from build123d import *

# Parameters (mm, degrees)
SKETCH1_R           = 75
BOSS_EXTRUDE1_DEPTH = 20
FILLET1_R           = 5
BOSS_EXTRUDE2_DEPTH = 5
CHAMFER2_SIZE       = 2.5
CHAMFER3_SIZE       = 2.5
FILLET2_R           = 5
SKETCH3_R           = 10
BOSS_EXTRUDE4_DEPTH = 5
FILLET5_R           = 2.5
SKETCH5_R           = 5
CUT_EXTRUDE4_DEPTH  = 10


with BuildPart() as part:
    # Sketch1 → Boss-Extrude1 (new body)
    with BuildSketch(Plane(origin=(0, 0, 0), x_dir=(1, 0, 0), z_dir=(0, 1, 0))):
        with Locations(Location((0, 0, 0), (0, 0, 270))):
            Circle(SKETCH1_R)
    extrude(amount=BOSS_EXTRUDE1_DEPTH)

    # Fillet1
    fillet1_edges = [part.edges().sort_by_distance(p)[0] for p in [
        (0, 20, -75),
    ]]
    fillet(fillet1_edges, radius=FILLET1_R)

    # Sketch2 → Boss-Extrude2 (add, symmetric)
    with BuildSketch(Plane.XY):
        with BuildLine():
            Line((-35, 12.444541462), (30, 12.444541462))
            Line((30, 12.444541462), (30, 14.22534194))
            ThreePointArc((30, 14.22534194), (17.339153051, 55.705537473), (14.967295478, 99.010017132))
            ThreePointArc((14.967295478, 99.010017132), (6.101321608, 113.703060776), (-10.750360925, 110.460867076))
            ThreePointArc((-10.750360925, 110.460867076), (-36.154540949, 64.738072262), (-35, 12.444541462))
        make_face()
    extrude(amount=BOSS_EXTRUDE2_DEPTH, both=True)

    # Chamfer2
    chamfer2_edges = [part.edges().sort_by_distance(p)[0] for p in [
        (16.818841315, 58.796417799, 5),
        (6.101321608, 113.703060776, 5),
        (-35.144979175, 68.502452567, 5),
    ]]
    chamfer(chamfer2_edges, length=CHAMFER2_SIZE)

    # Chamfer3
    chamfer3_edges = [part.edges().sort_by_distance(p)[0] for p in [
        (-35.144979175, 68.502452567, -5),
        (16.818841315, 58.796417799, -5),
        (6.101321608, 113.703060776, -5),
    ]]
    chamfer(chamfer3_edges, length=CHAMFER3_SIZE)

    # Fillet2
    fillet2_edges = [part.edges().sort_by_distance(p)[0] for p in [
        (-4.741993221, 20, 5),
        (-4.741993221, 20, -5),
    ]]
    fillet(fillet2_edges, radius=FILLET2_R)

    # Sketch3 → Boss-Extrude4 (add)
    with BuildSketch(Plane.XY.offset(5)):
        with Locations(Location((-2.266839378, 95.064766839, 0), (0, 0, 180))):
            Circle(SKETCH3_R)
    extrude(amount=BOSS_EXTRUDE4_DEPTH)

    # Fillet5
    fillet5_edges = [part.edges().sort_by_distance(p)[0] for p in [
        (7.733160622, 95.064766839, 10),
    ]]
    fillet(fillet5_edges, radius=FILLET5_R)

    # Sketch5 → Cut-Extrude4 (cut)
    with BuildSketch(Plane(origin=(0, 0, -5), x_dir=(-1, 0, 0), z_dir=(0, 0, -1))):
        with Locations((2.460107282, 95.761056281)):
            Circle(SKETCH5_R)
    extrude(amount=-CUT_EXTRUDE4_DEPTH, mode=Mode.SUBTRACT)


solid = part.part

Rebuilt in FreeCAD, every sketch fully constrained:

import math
import FreeCAD as App
import Part
import Sketcher

V = App.Vector
Q = App.Units.Quantity


def edges_at(feature, points):
    """Names of the edges that pass closest to the given points."""
    edges = feature.Shape.Edges
    near = lambda p: min(range(len(edges)), key=lambda i: edges[i].distToShape(Part.Vertex(*p))[0])
    return sorted({f"Edge{near(p) + 1}" for p in points})

doc = App.newDocument("Part")
body = doc.addObject("PartDesign::Body", "Body")

sketch1 = body.newObject("Sketcher::SketchObject", "Sketch")
sketch1.AttachmentSupport = (doc.getObject("XZ_Plane"), [""])
sketch1.MapMode = "FlatFace"
sketch1.addGeometry(Part.Circle(V(0, 0, 0), V(0, 0, 1), 75), False)
sketch1.addConstraint([
    Sketcher.Constraint("Coincident", 0, 3, -1, 1),
    Sketcher.Constraint("Diameter", 0, Q("150 mm")),
])
pad1 = body.newObject("PartDesign::Pad", "Pad")
pad1.Profile = sketch1
pad1.Length = 20
pad1.Reversed = True
doc.recompute()

fillet = body.newObject("PartDesign::Fillet", "Fillet")
fillet.Base = (pad1, edges_at(pad1, [(0, 20, -75)]))
fillet.Radius = 5

sketch2 = body.newObject("Sketcher::SketchObject", "Sketch001")
sketch2.AttachmentSupport = (doc.getObject("XY_Plane"), [""])
sketch2.MapMode = "FlatFace"
sketch2.addGeometry([
    Part.LineSegment(V(-35, 12.4, 0), V(30, 12.4, 0)),
    Part.LineSegment(V(30, 12.4, 0), V(30, 14.2, 0)),
    Part.ArcOfCircle(Part.Circle(V(194.6, 87.1, 0), V(0, 0, 1), 180), math.radians(176), math.radians(204)),
    Part.ArcOfCircle(Part.Circle(V(0, 100, 0), V(0, 0, 1), 15), math.radians(-4), math.radians(136)),
    Part.ArcOfCircle(Part.Circle(V(60.9, 40.7, 0), V(0, 0, 1), 100), math.radians(136), math.radians(196)),
], False)
sketch2.addConstraint([
    Sketcher.Constraint("Coincident", 0, 2, 1, 1),
    Sketcher.Constraint("Coincident", 1, 2, 2, 2),
    Sketcher.Constraint("Tangent", 2, 1, 3, 1),
    Sketcher.Constraint("Tangent", 3, 2, 4, 1),
    Sketcher.Constraint("Coincident", 4, 2, 0, 1),
    Sketcher.Constraint("Horizontal", 0),
    Sketcher.Constraint("Vertical", 1),
    Sketcher.Constraint("PointOnObject", 3, 3, -2),
    Sketcher.Constraint("Radius", 2, Q("180 mm")),
    Sketcher.Constraint("Radius", 3, Q("15 mm")),
    Sketcher.Constraint("Radius", 4, Q("100 mm")),
    Sketcher.Constraint("DistanceX", 0, 1, 0, 2, Q("65 mm")),
    Sketcher.Constraint("DistanceY", -1, 1, 3, 3, Q("100 mm")),
    Sketcher.Constraint("DistanceX", -1, 1, 0, 2, Q("30 mm")),
    Sketcher.Constraint("DistanceY", 1, 1, 1, 2, Q("1.7808 mm")),
    Sketcher.Constraint("DistanceX", -1, 1, 2, 3, Q("194.574841 mm")),
])
pad2 = body.newObject("PartDesign::Pad", "Pad001")
pad2.Profile = sketch2
pad2.Length = 10
pad2.Midplane = True
doc.recompute()

chamfer = body.newObject("PartDesign::Chamfer", "Chamfer")
chamfer.Base = (pad2, edges_at(pad2, [(16.819, 58.796, 5), (6.101, 113.703, 5), (-35.145, 68.502, 5)]))
chamfer.Size = 2.5
doc.recompute()

chamfer2 = body.newObject("PartDesign::Chamfer", "Chamfer001")
chamfer2.Base = (chamfer, edges_at(chamfer, [(-35.145, 68.502, -5), (16.819, 58.796, -5), (6.101, 113.703, -5)]))
chamfer2.Size = 2.5
doc.recompute()

fillet2 = body.newObject("PartDesign::Fillet", "Fillet001")
fillet2.Base = (chamfer2, edges_at(chamfer2, [(-4.742, 20, 5), (-4.742, 20, -5)]))
fillet2.Radius = 5

sketch3 = body.newObject("Sketcher::SketchObject", "Sketch002")
sketch3.AttachmentSupport = (doc.getObject("XY_Plane"), [""])
sketch3.MapMode = "FlatFace"
sketch3.AttachmentOffset = App.Placement(V(0, 0, 5), App.Rotation())
sketch3.addGeometry(Part.Circle(V(-2, 95, 0), V(0, 0, 1), 10), False)
sketch3.addConstraint([
    Sketcher.Constraint("Diameter", 0, Q("20 mm")),
    Sketcher.Constraint("DistanceX", 0, 3, -1, 1, Q("2.266839 mm")),
    Sketcher.Constraint("DistanceY", -1, 1, 0, 3, Q("95.064767 mm")),
])
pad3 = body.newObject("PartDesign::Pad", "Pad002")
pad3.Profile = sketch3
pad3.Length = 5
doc.recompute()

fillet3 = body.newObject("PartDesign::Fillet", "Fillet002")
fillet3.Base = (pad3, edges_at(pad3, [(7.733, 95.065, 10)]))
fillet3.Radius = 2.5

sketch4 = body.newObject("Sketcher::SketchObject", "Sketch003")
sketch4.AttachmentSupport = (doc.getObject("XY_Plane"), [""])
sketch4.MapMode = "FlatFace"
sketch4.AttachmentOffset = App.Placement(V(0, 0, -5), App.Rotation())
sketch4.addGeometry(Part.Circle(V(-2, 96, 0), V(0, 0, 1), 5), False)
sketch4.addConstraint([
    Sketcher.Constraint("Diameter", 0, Q("10 mm")),
    Sketcher.Constraint("DistanceX", 0, 3, -1, 1, Q("2.460107 mm")),
    Sketcher.Constraint("DistanceY", -1, 1, 0, 3, Q("95.761056 mm")),
])
pocket1 = body.newObject("PartDesign::Pocket", "Pocket")
pocket1.Profile = sketch4
pocket1.Length = 10
pocket1.Reversed = True

doc.recompute()
